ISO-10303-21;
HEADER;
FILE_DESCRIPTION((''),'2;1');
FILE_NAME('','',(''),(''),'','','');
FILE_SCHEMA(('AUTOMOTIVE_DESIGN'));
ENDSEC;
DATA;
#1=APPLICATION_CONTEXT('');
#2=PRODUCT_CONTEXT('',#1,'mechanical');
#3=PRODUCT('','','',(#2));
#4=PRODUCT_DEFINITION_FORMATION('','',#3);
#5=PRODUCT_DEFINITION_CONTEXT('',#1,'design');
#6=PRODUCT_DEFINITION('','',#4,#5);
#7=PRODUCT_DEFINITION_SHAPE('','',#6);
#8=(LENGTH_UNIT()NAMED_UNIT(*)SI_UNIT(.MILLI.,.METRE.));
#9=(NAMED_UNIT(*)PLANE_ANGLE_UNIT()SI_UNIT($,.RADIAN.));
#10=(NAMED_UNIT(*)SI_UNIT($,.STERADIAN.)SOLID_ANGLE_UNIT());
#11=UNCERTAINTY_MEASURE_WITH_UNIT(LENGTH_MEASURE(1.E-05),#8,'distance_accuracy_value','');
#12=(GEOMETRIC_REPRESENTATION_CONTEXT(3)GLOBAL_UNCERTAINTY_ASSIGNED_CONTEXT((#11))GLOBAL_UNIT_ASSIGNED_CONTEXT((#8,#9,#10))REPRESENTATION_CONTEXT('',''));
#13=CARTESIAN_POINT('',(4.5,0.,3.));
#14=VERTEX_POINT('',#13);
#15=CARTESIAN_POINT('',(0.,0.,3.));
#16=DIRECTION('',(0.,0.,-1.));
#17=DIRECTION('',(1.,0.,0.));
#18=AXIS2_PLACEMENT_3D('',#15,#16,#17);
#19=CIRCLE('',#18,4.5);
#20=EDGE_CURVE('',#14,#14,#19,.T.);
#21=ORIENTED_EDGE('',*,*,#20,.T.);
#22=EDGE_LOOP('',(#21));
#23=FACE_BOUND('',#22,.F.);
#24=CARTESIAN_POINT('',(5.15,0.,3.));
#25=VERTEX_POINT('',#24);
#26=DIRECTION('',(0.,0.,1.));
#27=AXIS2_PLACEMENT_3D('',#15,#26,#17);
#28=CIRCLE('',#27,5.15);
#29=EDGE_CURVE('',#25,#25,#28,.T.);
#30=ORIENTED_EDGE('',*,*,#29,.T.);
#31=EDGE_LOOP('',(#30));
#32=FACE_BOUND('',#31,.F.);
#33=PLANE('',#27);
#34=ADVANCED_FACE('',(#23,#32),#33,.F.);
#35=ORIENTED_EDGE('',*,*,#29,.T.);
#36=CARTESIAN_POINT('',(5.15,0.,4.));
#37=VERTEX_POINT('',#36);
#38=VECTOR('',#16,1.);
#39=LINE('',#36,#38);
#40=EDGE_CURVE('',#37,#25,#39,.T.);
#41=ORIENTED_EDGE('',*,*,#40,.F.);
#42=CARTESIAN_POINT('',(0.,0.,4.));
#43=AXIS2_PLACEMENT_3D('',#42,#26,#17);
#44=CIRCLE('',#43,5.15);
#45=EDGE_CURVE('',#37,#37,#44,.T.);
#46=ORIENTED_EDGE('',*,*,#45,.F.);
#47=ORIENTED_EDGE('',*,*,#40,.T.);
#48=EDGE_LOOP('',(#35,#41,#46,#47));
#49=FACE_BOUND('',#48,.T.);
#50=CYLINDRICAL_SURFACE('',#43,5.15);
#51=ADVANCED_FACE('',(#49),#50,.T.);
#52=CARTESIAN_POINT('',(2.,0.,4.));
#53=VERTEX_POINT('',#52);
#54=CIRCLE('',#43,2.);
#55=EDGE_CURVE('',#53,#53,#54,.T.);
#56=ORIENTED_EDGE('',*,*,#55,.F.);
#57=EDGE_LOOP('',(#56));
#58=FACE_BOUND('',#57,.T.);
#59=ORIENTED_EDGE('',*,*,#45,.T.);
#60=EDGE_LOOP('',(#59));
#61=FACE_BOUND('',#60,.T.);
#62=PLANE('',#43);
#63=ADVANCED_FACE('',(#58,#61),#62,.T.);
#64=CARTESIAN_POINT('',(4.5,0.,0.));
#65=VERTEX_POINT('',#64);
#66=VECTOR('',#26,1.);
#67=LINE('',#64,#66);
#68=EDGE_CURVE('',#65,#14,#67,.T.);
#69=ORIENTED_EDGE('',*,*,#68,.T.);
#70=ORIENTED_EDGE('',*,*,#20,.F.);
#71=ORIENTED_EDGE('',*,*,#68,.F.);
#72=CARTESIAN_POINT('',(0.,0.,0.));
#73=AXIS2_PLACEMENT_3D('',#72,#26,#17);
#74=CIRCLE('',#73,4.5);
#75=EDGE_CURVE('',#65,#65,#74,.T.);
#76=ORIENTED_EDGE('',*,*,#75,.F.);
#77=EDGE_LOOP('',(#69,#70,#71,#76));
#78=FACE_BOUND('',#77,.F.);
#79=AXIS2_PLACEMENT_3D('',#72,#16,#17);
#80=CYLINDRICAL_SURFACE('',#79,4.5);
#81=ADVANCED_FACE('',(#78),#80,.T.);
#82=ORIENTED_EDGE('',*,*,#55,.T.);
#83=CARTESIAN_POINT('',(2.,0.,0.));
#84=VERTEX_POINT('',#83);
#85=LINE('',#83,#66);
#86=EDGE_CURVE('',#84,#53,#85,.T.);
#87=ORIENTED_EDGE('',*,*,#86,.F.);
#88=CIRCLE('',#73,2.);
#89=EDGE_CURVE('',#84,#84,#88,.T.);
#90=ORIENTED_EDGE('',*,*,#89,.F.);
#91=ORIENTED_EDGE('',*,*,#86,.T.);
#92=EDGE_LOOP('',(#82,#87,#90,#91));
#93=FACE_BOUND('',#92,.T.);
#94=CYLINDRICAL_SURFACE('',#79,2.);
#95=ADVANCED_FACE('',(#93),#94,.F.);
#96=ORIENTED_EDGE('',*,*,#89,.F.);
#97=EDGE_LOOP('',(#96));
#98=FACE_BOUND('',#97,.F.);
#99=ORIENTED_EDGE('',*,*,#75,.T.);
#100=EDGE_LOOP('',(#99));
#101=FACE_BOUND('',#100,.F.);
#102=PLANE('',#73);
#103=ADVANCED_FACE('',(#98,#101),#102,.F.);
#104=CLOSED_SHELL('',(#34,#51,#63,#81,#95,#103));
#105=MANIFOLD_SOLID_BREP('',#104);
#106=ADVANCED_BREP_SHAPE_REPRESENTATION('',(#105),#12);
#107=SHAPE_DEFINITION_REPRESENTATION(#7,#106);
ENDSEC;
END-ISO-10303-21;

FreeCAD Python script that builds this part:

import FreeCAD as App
import Part
import Sketcher

V = App.Vector
Q = App.Units.Quantity

doc = App.newDocument("Part")
body = doc.addObject("PartDesign::Body", "Body")

# Sketch on XY plane
sketch1 = doc.addObject("Sketcher::SketchObject", "Sketch")
body.addObject(sketch1)
sketch1.AttachmentSupport = (doc.XY_Plane, [""])
sketch1.MapMode = "FlatFace"
sketch1.addGeometry(Part.Circle(V(0, 0, 0), V(0, 0, 1), 4.5), False)
sketch1.addGeometry(Part.Circle(V(0, 0, 0), V(0, 0, 1), 2), False)
sketch1.addConstraint(Sketcher.Constraint("Coincident", 0, 3, -1, 1))
sketch1.addConstraint(Sketcher.Constraint("Coincident", 1, 3, -1, 1))
sketch1.addConstraint(Sketcher.Constraint("Diameter", 0, Q("9 mm")))
sketch1.addConstraint(Sketcher.Constraint("Diameter", 1, Q("4 mm")))
pad1 = doc.addObject("PartDesign::Pad", "Pad")
body.addObject(pad1)
pad1.Profile = sketch1
pad1.Length = 4

# Sketch on XY plane
sketch2 = doc.addObject("Sketcher::SketchObject", "Sketch001")
body.addObject(sketch2)
sketch2.AttachmentSupport = (doc.XY_Plane, [""])
sketch2.MapMode = "FlatFace"
sketch2.AttachmentOffset = App.Placement(V(0, 0, 4), App.Rotation())
sketch2.addGeometry(Part.Circle(V(0, 0, 0), V(0, 0, 1), 5.2), False)
sketch2.addGeometry(Part.Circle(V(0, 0, 0), V(0, 0, 1), 2), False)
sketch2.addConstraint(Sketcher.Constraint("Coincident", 0, 3, -1, 1))
sketch2.addConstraint(Sketcher.Constraint("Coincident", 1, 3, -1, 1))
sketch2.addConstraint(Sketcher.Constraint("Diameter", 0, Q("10.3 mm")))
sketch2.addConstraint(Sketcher.Constraint("Diameter", 1, Q("4 mm")))
pad2 = doc.addObject("PartDesign::Pad", "Pad001")
body.addObject(pad2)
pad2.Profile = sketch2
pad2.Length = 1
pad2.Reversed = True

doc.recompute()
